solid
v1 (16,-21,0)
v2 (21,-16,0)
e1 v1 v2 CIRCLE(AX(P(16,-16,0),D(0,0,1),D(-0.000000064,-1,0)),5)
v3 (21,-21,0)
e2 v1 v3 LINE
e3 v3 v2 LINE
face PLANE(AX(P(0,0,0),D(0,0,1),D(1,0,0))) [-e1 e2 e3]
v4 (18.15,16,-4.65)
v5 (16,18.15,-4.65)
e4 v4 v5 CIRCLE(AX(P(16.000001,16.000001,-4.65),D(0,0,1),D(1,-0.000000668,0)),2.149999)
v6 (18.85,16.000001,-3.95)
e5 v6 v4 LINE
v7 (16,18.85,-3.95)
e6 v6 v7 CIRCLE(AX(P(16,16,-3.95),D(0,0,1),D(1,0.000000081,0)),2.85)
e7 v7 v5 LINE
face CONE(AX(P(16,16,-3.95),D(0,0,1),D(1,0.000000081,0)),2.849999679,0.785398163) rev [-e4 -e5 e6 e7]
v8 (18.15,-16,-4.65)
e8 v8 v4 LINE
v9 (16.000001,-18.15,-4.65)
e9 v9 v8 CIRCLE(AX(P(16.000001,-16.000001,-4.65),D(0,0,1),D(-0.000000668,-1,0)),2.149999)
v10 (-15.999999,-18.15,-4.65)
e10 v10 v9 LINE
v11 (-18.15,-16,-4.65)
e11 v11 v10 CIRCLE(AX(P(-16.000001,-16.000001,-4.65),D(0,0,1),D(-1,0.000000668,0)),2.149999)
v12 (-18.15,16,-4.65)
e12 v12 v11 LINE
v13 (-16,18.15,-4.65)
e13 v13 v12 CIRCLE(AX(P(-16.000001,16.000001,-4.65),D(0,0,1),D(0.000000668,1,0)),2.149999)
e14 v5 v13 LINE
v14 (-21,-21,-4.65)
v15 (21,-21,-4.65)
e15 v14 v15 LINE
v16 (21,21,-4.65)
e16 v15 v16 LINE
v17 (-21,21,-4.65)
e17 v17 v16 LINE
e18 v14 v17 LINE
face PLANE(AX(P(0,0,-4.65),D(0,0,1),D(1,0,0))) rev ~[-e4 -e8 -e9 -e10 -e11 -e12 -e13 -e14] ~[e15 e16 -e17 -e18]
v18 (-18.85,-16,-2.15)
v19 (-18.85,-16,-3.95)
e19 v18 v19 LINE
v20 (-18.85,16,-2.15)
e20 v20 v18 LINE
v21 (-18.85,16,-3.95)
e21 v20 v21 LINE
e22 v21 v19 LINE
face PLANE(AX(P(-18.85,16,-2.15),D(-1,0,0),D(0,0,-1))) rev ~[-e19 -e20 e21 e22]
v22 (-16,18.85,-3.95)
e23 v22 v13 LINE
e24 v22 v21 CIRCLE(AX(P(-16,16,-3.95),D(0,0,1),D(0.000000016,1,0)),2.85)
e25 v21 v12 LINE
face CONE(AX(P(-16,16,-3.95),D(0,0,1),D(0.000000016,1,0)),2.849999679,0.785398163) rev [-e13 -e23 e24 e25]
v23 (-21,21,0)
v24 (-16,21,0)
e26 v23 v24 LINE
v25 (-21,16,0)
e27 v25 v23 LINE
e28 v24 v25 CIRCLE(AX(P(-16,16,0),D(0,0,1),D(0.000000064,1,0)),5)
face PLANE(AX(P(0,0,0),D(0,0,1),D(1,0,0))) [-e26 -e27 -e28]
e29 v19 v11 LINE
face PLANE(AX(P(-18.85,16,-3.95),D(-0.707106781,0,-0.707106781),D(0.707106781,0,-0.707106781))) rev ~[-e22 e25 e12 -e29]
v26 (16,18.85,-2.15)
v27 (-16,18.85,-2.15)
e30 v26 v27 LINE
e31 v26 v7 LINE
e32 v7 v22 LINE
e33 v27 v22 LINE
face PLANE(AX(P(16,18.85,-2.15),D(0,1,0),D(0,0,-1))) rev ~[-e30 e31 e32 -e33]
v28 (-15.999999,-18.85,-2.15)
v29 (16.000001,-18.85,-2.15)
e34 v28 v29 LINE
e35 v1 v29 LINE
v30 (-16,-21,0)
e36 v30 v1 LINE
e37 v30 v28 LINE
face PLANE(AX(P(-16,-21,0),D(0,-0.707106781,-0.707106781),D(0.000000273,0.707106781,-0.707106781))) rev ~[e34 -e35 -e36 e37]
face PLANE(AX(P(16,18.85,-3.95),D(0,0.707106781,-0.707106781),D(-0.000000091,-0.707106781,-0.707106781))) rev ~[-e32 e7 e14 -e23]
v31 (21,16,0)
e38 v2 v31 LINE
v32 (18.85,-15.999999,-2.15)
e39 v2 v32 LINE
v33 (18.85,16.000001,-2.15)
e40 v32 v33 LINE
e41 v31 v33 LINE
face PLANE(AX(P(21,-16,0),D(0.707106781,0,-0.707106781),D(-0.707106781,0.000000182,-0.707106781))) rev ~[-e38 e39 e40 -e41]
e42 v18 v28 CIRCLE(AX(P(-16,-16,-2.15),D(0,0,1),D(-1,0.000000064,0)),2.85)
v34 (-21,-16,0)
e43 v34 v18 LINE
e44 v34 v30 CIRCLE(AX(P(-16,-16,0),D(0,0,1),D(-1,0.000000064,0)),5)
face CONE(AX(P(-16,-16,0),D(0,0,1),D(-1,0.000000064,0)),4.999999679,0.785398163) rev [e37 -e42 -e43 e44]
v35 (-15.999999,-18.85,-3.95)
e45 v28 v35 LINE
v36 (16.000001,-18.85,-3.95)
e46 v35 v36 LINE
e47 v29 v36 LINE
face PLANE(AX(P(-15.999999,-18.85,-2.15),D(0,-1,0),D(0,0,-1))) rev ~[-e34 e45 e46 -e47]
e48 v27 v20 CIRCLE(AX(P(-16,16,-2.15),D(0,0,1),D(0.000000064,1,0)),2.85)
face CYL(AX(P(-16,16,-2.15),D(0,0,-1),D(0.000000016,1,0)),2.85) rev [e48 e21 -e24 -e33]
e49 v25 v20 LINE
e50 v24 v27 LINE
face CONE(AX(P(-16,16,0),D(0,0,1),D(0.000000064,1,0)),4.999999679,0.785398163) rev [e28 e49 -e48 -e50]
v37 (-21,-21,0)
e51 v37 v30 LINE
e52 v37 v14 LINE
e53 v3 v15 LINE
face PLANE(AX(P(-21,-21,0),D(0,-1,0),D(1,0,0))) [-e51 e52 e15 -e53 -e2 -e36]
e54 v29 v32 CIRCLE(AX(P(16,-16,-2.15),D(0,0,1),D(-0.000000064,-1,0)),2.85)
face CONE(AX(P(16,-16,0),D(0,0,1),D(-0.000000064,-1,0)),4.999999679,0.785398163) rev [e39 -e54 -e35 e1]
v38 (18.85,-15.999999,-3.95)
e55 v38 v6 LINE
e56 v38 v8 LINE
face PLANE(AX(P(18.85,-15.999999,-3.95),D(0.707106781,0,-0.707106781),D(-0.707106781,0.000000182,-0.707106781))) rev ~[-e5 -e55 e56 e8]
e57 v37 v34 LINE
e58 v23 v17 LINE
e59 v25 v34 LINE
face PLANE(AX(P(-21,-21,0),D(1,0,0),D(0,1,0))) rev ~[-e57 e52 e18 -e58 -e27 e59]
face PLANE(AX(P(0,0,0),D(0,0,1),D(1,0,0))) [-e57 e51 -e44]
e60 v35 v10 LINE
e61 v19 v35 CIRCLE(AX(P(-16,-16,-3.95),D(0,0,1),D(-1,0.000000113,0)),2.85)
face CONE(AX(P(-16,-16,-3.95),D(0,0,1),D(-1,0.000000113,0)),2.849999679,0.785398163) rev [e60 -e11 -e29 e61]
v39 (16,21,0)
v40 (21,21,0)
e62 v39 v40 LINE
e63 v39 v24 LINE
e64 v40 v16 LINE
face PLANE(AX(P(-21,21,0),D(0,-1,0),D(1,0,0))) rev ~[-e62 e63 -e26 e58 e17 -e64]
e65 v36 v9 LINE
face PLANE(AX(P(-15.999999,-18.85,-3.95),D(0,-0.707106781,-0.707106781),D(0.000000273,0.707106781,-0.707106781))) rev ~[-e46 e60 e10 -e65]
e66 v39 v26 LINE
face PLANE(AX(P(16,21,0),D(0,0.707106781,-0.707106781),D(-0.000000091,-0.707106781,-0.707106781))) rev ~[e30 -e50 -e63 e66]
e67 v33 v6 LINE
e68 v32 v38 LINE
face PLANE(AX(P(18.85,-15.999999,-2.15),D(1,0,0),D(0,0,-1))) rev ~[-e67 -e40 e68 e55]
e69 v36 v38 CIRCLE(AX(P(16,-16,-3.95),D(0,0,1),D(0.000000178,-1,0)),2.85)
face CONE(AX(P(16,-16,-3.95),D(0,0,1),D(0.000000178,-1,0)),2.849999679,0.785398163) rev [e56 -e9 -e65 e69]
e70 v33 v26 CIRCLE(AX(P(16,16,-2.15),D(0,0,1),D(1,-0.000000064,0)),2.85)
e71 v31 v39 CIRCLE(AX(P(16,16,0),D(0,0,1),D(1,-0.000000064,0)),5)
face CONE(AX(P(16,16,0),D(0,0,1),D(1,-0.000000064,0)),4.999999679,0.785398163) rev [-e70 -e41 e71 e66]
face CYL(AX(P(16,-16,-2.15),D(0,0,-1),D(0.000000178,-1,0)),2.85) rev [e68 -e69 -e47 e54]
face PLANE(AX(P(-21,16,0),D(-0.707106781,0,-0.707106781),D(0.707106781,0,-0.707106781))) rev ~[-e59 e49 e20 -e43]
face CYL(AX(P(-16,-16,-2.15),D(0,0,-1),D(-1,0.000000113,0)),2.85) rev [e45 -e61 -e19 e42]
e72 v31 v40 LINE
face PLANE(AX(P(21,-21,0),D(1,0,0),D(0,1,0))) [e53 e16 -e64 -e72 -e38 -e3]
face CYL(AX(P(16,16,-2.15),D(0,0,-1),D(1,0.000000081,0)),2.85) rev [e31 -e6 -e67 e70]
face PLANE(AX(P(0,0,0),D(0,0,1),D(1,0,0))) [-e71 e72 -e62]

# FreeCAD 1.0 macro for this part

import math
import FreeCAD as App
import Part
import Sketcher
from FreeCAD import Vector
Q = App.Units.Quantity

doc = App.newDocument("Part")
params = doc.addObject("Spreadsheet::Sheet", "Params")
for row, (alias, value) in enumerate([
    ("sketch1_width", "42 mm"),
    ("sketch1_width2", "32 mm"),
    ("sketch1_radius", "2.149999 mm"),
    ("pad1_length", "4.65 mm"),
    ("sketch2_height", "1.8 mm"),
    ("sketch2_width", "2.85 mm"),
    ("sketch3_radius", "5 mm"),
    ("sketch3_width", "32 mm"),
], start=1):
    params.set(f"A{row}", alias)
    params.set(f"B{row}", "=" + value)
    params.setAlias(f"B{row}", alias)

body = doc.addObject("PartDesign::Body", "Body")

# Sketch on XY plane
sketch1 = doc.addObject("Sketcher::SketchObject", "Sketch")
body.addObject(sketch1)
sketch1.AttachmentSupport = (doc.XY_Plane, [""])
sketch1.MapMode = "FlatFace"
sketch1.addGeometry([
    Part.LineSegment(Vector(-21, 21, 0), Vector(-21, -21, 0)),  # 0
    Part.LineSegment(Vector(-21, -21, 0), Vector(21, -21, 0)),  # 1
    Part.LineSegment(Vector(21, -21, 0), Vector(21, 21, 0)),  # 2
    Part.LineSegment(Vector(21, 21, 0), Vector(-21, 21, 0)),  # 3
    Part.LineSegment(Vector(16, -18.1, 0), Vector(-16, -18.1, 0)),  # 4
    Part.ArcOfCircle(Part.Circle(Vector(-16, -16, 0), Vector(0, 0, 1), 2.1), math.radians(180), math.radians(270)),  # 5
    Part.LineSegment(Vector(-18.1, -16, 0), Vector(-18.1, 16, 0)),  # 6
    Part.ArcOfCircle(Part.Circle(Vector(-16, 16, 0), Vector(0, 0, 1), 2.1), math.radians(90), math.radians(180)),  # 7
    Part.LineSegment(Vector(-16, 18.1, 0), Vector(16, 18.1, 0)),  # 8
    Part.ArcOfCircle(Part.Circle(Vector(16, 16, 0), Vector(0, 0, 1), 2.1), math.radians(0), math.radians(90)),  # 9
    Part.LineSegment(Vector(18.1, 16, 0), Vector(18.1, -16, 0)),  # 10
    Part.ArcOfCircle(Part.Circle(Vector(16, -16, 0), Vector(0, 0, 1), 2.1), math.radians(-90), math.radians(0)),  # 11
], False)
sketch1.addConstraint([
    Sketcher.Constraint("Coincident", 0, 2, 1, 1),
    Sketcher.Constraint("Coincident", 1, 2, 2, 1),
    Sketcher.Constraint("Coincident", 2, 2, 3, 1),
    Sketcher.Constraint("Coincident", 3, 2, 0, 1),
    Sketcher.Constraint("Tangent", 4, 2, 5, 2),
    Sketcher.Constraint("Tangent", 5, 1, 6, 1),
    Sketcher.Constraint("Tangent", 6, 2, 7, 2),
    Sketcher.Constraint("Tangent", 7, 1, 8, 1),
    Sketcher.Constraint("Tangent", 8, 2, 9, 2),
    Sketcher.Constraint("Tangent", 9, 1, 10, 1),
    Sketcher.Constraint("Tangent", 10, 2, 11, 2),
    Sketcher.Constraint("Tangent", 11, 1, 4, 1),
    Sketcher.Constraint("Vertical", 0),
    Sketcher.Constraint("Horizontal", 1),
    Sketcher.Constraint("Vertical", 2),
    Sketcher.Constraint("Horizontal", 3),
    Sketcher.Constraint("Horizontal", 4),
    Sketcher.Constraint("Vertical", 6),
    Sketcher.Constraint("Horizontal", 8),
    Sketcher.Constraint("Vertical", 10),
    Sketcher.Constraint("Equal", 5, 7),
    Sketcher.Constraint("Equal", 7, 9),
    Sketcher.Constraint("Equal", 9, 11),
    Sketcher.Constraint("Symmetric", 5, 3, 9, 3, -1, 1),
    Sketcher.Constraint("Symmetric", 0, 2, 2, 2, -1, 1),
    Sketcher.Constraint("Equal", 3, 0),
    Sketcher.Constraint("Equal", 8, 6),
    Sketcher.Constraint("DistanceX", 1, 1, 1, 2, Q("42 mm")),
    Sketcher.Constraint("DistanceX", 4, 2, 4, 1, Q("32 mm")),
    Sketcher.Constraint("Radius", 5, Q("2.149999 mm")),
])
sketch1.setExpression("Constraints[27]", "Params.sketch1_width")
sketch1.setExpression("Constraints[28]", "Params.sketch1_width2")
sketch1.setExpression("Constraints[29]", "Params.sketch1_radius")
pad1 = doc.addObject("PartDesign::Pad", "Pad")
body.addObject(pad1)
pad1.Profile = sketch1
pad1.setExpression("Length", "Params.pad1_length")
pad1.Reversed = True

# Sketch on XZ plane
sketch2 = doc.addObject("Sketcher::SketchObject", "Sketch001")
body.addObject(sketch2)
sketch2.AttachmentSupport = (doc.XZ_Plane, [""])
sketch2.MapMode = "FlatFace"
sketch2.addGeometry([
    Part.LineSegment(Vector(-21, 0, 0), Vector(-18.9, -2.1, 0)),  # 0
    Part.LineSegment(Vector(-18.9, -2.1, 0), Vector(-18.9, -4, 0)),  # 1
    Part.LineSegment(Vector(-18.9, -4, 0), Vector(-18.1, -4.7, 0)),  # 2
    Part.LineSegment(Vector(-18.1, -4.7, 0), Vector(-18.1, 0, 0)),  # 3
    Part.LineSegment(Vector(-18.1, 0, 0), Vector(-21, 0, 0)),  # 4
], False)
sketch2.addConstraint([
    Sketcher.Constraint("Coincident", 0, 2, 1, 1),
    Sketcher.Constraint("Coincident", 1, 2, 2, 1),
    Sketcher.Constraint("Coincident", 2, 2, 3, 1),
    Sketcher.Constraint("Coincident", 3, 2, 4, 1),
    Sketcher.Constraint("Coincident", 4, 2, 0, 1),
    Sketcher.Constraint("Vertical", 1),
    Sketcher.Constraint("Vertical", 3),
    Sketcher.Constraint("Horizontal", 4),
    Sketcher.Constraint("PointOnObject", 3, 2, -1),
    Sketcher.Constraint("Parallel", 0, 2),
    Sketcher.Constraint("Angle", 0, Q("-45 deg")),
    Sketcher.Constraint("DistanceY", 1, 2, 1, 1, Q("1.8 mm")),
    Sketcher.Constraint("DistanceX", 4, 2, -1, 1, Q("21 mm")),
    Sketcher.Constraint("DistanceX", 4, 2, 4, 1, Q("2.85 mm")),
    Sketcher.Constraint("DistanceX", 1, 2, 2, 2, Q("0.7 mm")),
])
sketch2.setExpression("Constraints[11]", "Params.sketch2_height")
sketch2.setExpression("Constraints[13]", "Params.sketch2_width")

# Sketch on XY plane
sketch3 = doc.addObject("Sketcher::SketchObject", "Sketch002")
body.addObject(sketch3)
sketch3.AttachmentSupport = (doc.XY_Plane, [""])
sketch3.MapMode = "FlatFace"
sketch3.addGeometry([
    Part.LineSegment(Vector(-16, -21, 0), Vector(16, -21, 0)),  # 0
    Part.ArcOfCircle(Part.Circle(Vector(16, -16, 0), Vector(0, 0, 1), 5), math.radians(-90), math.radians(0)),  # 1
    Part.LineSegment(Vector(21, -16, 0), Vector(21, 16, 0)),  # 2
    Part.ArcOfCircle(Part.Circle(Vector(16, 16, 0), Vector(0, 0, 1), 5), math.radians(0), math.radians(90)),  # 3
    Part.LineSegment(Vector(16, 21, 0), Vector(-16, 21, 0)),  # 4
    Part.ArcOfCircle(Part.Circle(Vector(-16, 16, 0), Vector(0, 0, 1), 5), math.radians(90), math.radians(180)),  # 5
    Part.LineSegment(Vector(-21, 16, 0), Vector(-21, -16, 0)),  # 6
    Part.ArcOfCircle(Part.Circle(Vector(-16, -16, 0), Vector(0, 0, 1), 5), math.radians(180), math.radians(270)),  # 7
], False)
sketch3.addConstraint([
    Sketcher.Constraint("Tangent", 0, 2, 1, 1),
    Sketcher.Constraint("Tangent", 1, 2, 2, 1),
    Sketcher.Constraint("Tangent", 2, 2, 3, 1),
    Sketcher.Constraint("Tangent", 3, 2, 4, 1),
    Sketcher.Constraint("Tangent", 4, 2, 5, 1),
    Sketcher.Constraint("Tangent", 5, 2, 6, 1),
    Sketcher.Constraint("Tangent", 6, 2, 7, 1),
    Sketcher.Constraint("Tangent", 7, 2, 0, 1),
    Sketcher.Constraint("Horizontal", 0),
    Sketcher.Constraint("Vertical", 2),
    Sketcher.Constraint("Horizontal", 4),
    Sketcher.Constraint("Vertical", 6),
    Sketcher.Constraint("Equal", 1, 3),
    Sketcher.Constraint("Equal", 3, 5),
    Sketcher.Constraint("Equal", 5, 7),
    Sketcher.Constraint("Symmetric", 1, 3, 5, 3, -1, 1),
    Sketcher.Constraint("Equal", 4, 2),
    Sketcher.Constraint("Radius", 1, Q("5 mm")),
    Sketcher.Constraint("DistanceX", 0, 1, 0, 2, Q("32 mm")),
])
sketch3.setExpression("Constraints[17]", "Params.sketch3_radius")
sketch3.setExpression("Constraints[18]", "Params.sketch3_width")
doc.recompute()

subtractivepipe = doc.addObject("PartDesign::SubtractivePipe", "SubtractivePipe")
body.addObject(subtractivepipe)
subtractivepipe.Profile = sketch2
subtractivepipe.Spine = (sketch3, ["Edge1", "Edge2", "Edge3", "Edge4", "Edge5", "Edge6", "Edge7", "Edge8"])

doc.recompute()
